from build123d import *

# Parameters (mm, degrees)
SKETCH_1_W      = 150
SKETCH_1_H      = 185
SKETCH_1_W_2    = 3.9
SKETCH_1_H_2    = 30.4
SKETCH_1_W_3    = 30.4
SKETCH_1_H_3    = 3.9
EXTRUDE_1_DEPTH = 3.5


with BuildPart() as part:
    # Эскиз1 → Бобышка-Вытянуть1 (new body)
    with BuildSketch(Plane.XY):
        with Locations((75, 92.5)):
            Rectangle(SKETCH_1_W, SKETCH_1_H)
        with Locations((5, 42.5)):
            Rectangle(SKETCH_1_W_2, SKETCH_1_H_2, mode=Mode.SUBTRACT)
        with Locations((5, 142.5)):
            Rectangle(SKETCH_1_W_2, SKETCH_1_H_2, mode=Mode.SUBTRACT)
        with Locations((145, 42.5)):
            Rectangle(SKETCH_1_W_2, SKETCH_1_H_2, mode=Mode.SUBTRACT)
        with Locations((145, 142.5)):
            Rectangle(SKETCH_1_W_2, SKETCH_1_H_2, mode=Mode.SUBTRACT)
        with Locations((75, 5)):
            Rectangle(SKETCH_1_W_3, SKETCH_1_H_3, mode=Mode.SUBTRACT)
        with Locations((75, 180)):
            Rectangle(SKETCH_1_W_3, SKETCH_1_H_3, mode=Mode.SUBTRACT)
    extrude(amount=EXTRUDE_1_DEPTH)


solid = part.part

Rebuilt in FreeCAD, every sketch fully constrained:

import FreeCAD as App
import Part
import Sketcher

V = App.Vector
Q = App.Units.Quantity

doc = App.newDocument("Part")
body = doc.addObject("PartDesign::Body", "Body")

sketch1 = body.newObject("Sketcher::SketchObject", "Sketch")
sketch1.AttachmentSupport = (doc.getObject("XY_Plane"), [""])
sketch1.MapMode = "FlatFace"
sketch1.addGeometry([
    Part.LineSegment(V(0, 185, 0), V(0, 0, 0)),
    Part.LineSegment(V(0, 0, 0), V(150, 0, 0)),
    Part.LineSegment(V(150, 0, 0), V(150, 185, 0)),
    Part.LineSegment(V(150, 185, 0), V(0, 185, 0)),
    Part.LineSegment(V(7, 27.3, 0), V(3, 27.3, 0)),
    Part.LineSegment(V(3, 27.3, 0), V(3, 57.7, 0)),
    Part.LineSegment(V(3, 57.7, 0), V(7, 57.7, 0)),
    Part.LineSegment(V(7, 57.7, 0), V(7, 27.3, 0)),
    Part.LineSegment(V(90.2, 3, 0), V(59.8, 3, 0)),
    Part.LineSegment(V(59.8, 3, 0), V(59.8, 7, 0)),
    Part.LineSegment(V(59.8, 7, 0), V(90.2, 7, 0)),
    Part.LineSegment(V(90.2, 7, 0), V(90.2, 3, 0)),
    Part.LineSegment(V(146.9, 27.3, 0), V(143.1, 27.3, 0)),
    Part.LineSegment(V(143.1, 27.3, 0), V(143.1, 57.7, 0)),
    Part.LineSegment(V(143.1, 57.7, 0), V(146.9, 57.7, 0)),
    Part.LineSegment(V(146.9, 57.7, 0), V(146.9, 27.3, 0)),
    Part.LineSegment(V(7, 127.3, 0), V(3, 127.3, 0)),
    Part.LineSegment(V(3, 127.3, 0), V(3, 157.7, 0)),
    Part.LineSegment(V(3, 157.7, 0), V(7, 157.7, 0)),
    Part.LineSegment(V(7, 157.7, 0), V(7, 127.3, 0)),
    Part.LineSegment(V(90.2, 178.1, 0), V(59.8, 178.1, 0)),
    Part.LineSegment(V(59.8, 178.1, 0), V(59.8, 181.9, 0)),
    Part.LineSegment(V(59.8, 181.9, 0), V(90.2, 181.9, 0)),
    Part.LineSegment(V(90.2, 181.9, 0), V(90.2, 178.1, 0)),
    Part.LineSegment(V(146.9, 127.3, 0), V(143.1, 127.3, 0)),
    Part.LineSegment(V(143.1, 127.3, 0), V(143.1, 157.7, 0)),
    Part.LineSegment(V(143.1, 157.7, 0), V(146.9, 157.7, 0)),
    Part.LineSegment(V(146.9, 157.7, 0), V(146.9, 127.3, 0)),
], False)
sketch1.addConstraint([
    Sketcher.Constraint("Coincident", 0, 2, 1, 1),
    Sketcher.Constraint("Coincident", 1, 2, 2, 1),
    Sketcher.Constraint("Coincident", 2, 2, 3, 1),
    Sketcher.Constraint("Coincident", 3, 2, 0, 1),
    Sketcher.Constraint("Coincident", 4, 2, 5, 1),
    Sketcher.Constraint("Coincident", 5, 2, 6, 1),
    Sketcher.Constraint("Coincident", 6, 2, 7, 1),
    Sketcher.Constraint("Coincident", 7, 2, 4, 1),
    Sketcher.Constraint("Coincident", 8, 2, 9, 1),
    Sketcher.Constraint("Coincident", 9, 2, 10, 1),
    Sketcher.Constraint("Coincident", 10, 2, 11, 1),
    Sketcher.Constraint("Coincident", 11, 2, 8, 1),
    Sketcher.Constraint("Coincident", 12, 2, 13, 1),
    Sketcher.Constraint("Coincident", 13, 2, 14, 1),
    Sketcher.Constraint("Coincident", 14, 2, 15, 1),
    Sketcher.Constraint("Coincident", 15, 2, 12, 1),
    Sketcher.Constraint("Coincident", 16, 2, 17, 1),
    Sketcher.Constraint("Coincident", 17, 2, 18, 1),
    Sketcher.Constraint("Coincident", 18, 2, 19, 1),
    Sketcher.Constraint("Coincident", 19, 2, 16, 1),
    Sketcher.Constraint("Coincident", 20, 2, 21, 1),
    Sketcher.Constraint("Coincident", 21, 2, 22, 1),
    Sketcher.Constraint("Coincident", 22, 2, 23, 1),
    Sketcher.Constraint("Coincident", 23, 2, 20, 1),
    Sketcher.Constraint("Coincident", 24, 2, 25, 1),
    Sketcher.Constraint("Coincident", 25, 2, 26, 1),
    Sketcher.Constraint("Coincident", 26, 2, 27, 1),
    Sketcher.Constraint("Coincident", 27, 2, 24, 1),
    Sketcher.Constraint("Vertical", 0),
    Sketcher.Constraint("Horizontal", 1),
    Sketcher.Constraint("Vertical", 2),
    Sketcher.Constraint("Horizontal", 3),
    Sketcher.Constraint("Horizontal", 4),
    Sketcher.Constraint("Vertical", 5),
    Sketcher.Constraint("Horizontal", 6),
    Sketcher.Constraint("Vertical", 7),
    Sketcher.Constraint("Horizontal", 8),
    Sketcher.Constraint("Vertical", 9),
    Sketcher.Constraint("Horizontal", 10),
    Sketcher.Constraint("Vertical", 11),
    Sketcher.Constraint("Horizontal", 12),
    Sketcher.Constraint("Vertical", 13),
    Sketcher.Constraint("Horizontal", 14),
    Sketcher.Constraint("Vertical", 15),
    Sketcher.Constraint("Horizontal", 16),
    Sketcher.Constraint("Vertical", 17),
    Sketcher.Constraint("Horizontal", 18),
    Sketcher.Constraint("Vertical", 19),
    Sketcher.Constraint("Horizontal", 20),
    Sketcher.Constraint("Vertical", 21),
    Sketcher.Constraint("Horizontal", 22),
    Sketcher.Constraint("Vertical", 23),
    Sketcher.Constraint("Horizontal", 24),
    Sketcher.Constraint("Vertical", 25),
    Sketcher.Constraint("Horizontal", 26),
    Sketcher.Constraint("Vertical", 27),
    Sketcher.Constraint("Coincident", 0, 2, -1, 1),
    Sketcher.Constraint("Horizontal", 7, 2, 12, 2),
    Sketcher.Constraint("Horizontal", 6, 2, 13, 2),
    Sketcher.Constraint("Horizontal", 19, 2, 24, 2),
    Sketcher.Constraint("Horizontal", 18, 2, 25, 2),
    Sketcher.Constraint("Vertical", 5, 2, 16, 2),
    Sketcher.Constraint("Vertical", 7, 2, 18, 2),
    Sketcher.Constraint("Vertical", 9, 2, 20, 2),
    Sketcher.Constraint("Vertical", 11, 2, 22, 2),
    Sketcher.Constraint("Vertical", 13, 2, 24, 2),
    Sketcher.Constraint("Vertical", 15, 2, 26, 2),
    Sketcher.Constraint("Equal", 6, 12),
    Sketcher.Constraint("Equal", 22, 5),
    Sketcher.Constraint("Equal", 26, 9),
    Sketcher.Constraint("Equal", 15, 17),
    Sketcher.Constraint("Equal", 11, 21),
    Sketcher.Constraint("DistanceX", 1, 1, 1, 2, Q("150 mm")),
    Sketcher.Constraint("DistanceY", 0, 2, 0, 1, Q("185 mm")),
    Sketcher.Constraint("DistanceX", 4, 2, 4, 1, Q("3.9 mm")),
    Sketcher.Constraint("DistanceX", 8, 2, 8, 1, Q("30.4 mm")),
    Sketcher.Constraint("DistanceY", 4, 2, 16, 2, Q("100 mm")),
    Sketcher.Constraint("DistanceY", -1, 1, 4, 2, Q("27.3 mm")),
    Sketcher.Constraint("DistanceX", -1, 1, 8, 2, Q("59.8 mm")),
    Sketcher.Constraint("DistanceX", -1, 1, 4, 2, Q("3.05 mm")),
    Sketcher.Constraint("DistanceY", -1, 1, 8, 2, Q("3.05 mm")),
    Sketcher.Constraint("DistanceX", -1, 1, 12, 2, Q("143.05 mm")),
    Sketcher.Constraint("DistanceY", -1, 1, 20, 2, Q("178.05 mm")),
])
pad1 = body.newObject("PartDesign::Pad", "Pad")
pad1.Profile = sketch1
pad1.Length = 3.5

doc.recompute()
